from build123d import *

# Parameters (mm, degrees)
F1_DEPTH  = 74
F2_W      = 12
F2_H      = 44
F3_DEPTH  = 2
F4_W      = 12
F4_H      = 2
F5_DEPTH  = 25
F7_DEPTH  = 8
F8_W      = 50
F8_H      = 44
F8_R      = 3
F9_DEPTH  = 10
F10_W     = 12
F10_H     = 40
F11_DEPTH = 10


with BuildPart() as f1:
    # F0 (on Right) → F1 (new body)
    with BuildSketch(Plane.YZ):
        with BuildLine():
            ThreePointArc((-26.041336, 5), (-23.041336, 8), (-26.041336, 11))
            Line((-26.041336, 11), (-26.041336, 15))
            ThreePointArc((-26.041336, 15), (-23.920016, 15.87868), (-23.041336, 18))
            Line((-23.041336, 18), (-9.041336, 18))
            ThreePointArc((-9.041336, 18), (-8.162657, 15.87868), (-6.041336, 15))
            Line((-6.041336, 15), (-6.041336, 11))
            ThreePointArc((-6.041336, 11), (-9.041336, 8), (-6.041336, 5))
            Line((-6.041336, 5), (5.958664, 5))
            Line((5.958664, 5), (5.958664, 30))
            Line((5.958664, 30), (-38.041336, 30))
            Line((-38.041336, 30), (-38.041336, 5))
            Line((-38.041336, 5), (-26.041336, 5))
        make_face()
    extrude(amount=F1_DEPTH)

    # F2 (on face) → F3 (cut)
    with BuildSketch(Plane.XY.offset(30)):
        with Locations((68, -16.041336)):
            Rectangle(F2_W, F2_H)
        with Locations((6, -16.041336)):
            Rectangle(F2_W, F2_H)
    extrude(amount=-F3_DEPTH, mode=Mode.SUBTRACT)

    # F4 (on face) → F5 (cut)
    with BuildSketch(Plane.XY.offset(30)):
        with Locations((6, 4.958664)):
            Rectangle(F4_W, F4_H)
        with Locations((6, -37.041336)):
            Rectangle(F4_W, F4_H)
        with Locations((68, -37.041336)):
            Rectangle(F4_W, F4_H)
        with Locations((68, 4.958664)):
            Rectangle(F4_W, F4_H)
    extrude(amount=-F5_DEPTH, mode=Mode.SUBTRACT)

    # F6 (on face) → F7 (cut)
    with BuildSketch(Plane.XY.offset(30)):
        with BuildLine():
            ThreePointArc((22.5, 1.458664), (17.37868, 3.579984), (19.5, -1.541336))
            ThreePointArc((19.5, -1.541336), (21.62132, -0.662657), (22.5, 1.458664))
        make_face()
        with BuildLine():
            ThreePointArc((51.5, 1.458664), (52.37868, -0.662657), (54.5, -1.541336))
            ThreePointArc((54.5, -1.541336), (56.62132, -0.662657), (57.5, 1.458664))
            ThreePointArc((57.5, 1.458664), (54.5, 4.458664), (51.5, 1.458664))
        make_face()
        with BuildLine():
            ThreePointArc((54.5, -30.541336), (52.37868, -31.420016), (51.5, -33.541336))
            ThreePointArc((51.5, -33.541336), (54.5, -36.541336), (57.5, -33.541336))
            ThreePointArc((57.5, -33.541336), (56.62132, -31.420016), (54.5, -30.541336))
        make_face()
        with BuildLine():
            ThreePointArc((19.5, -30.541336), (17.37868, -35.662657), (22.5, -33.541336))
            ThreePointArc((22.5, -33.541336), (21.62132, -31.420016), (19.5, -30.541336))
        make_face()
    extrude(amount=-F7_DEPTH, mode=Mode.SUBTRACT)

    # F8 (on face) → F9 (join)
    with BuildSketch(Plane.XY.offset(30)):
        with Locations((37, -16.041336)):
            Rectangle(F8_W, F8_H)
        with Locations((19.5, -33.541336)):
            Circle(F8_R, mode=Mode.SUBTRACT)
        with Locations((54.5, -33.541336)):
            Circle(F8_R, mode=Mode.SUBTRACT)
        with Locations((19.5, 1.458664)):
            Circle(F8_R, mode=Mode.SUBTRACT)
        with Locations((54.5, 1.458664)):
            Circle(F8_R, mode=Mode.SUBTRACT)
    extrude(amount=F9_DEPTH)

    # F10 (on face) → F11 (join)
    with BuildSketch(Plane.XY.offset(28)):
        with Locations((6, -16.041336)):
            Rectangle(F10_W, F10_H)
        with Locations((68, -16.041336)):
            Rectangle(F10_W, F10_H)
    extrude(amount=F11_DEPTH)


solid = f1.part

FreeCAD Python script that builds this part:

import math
import FreeCAD as App
import Part
import Sketcher


def add_polygon(sketch, points):
    """Adds a closed chain of lines whose ends are joined by coincident constraints."""
    first, n = sketch.GeometryCount, len(points)
    for a, b in zip(points, points[1:] + points[:1]):
        sketch.addGeometry(Part.LineSegment(App.Vector(*a, 0), App.Vector(*b, 0)), False)
    for i in range(n):
        sketch.addConstraint(Sketcher.Constraint("Coincident", first + i, 2, first + (i + 1) % n, 1))

doc = App.newDocument("Part")
body = doc.addObject("PartDesign::Body", "Body")

sketch1 = body.newObject("Sketcher::SketchObject", "Sketch")
sketch1.AttachmentSupport = (doc.getObject("YZ_Plane"), [""])
sketch1.MapMode = "FlatFace"
sketch1.addGeometry(Part.ArcOfCircle(Part.Circle(App.Vector(-26, 8, 0), App.Vector(0, 0, 1), 3), math.radians(-90), math.radians(90)), False)
sketch1.addGeometry(Part.LineSegment(App.Vector(-26, 11, 0), App.Vector(-26, 15, 0)), False)
sketch1.addGeometry(Part.ArcOfCircle(Part.Circle(App.Vector(-26, 18, 0), App.Vector(0, 0, 1), 3), math.radians(-90), math.radians(0)), False)
sketch1.addGeometry(Part.LineSegment(App.Vector(-23, 18, 0), App.Vector(-9, 18, 0)), False)
sketch1.addGeometry(Part.ArcOfCircle(Part.Circle(App.Vector(-6, 18, 0), App.Vector(0, 0, 1), 3), math.radians(180), math.radians(270)), False)
sketch1.addGeometry(Part.LineSegment(App.Vector(-6, 15, 0), App.Vector(-6, 11, 0)), False)
sketch1.addGeometry(Part.ArcOfCircle(Part.Circle(App.Vector(-6, 8, 0), App.Vector(0, 0, 1), 3), math.radians(90), math.radians(270)), False)
sketch1.addGeometry(Part.LineSegment(App.Vector(-6, 5, 0), App.Vector(6, 5, 0)), False)
sketch1.addGeometry(Part.LineSegment(App.Vector(6, 5, 0), App.Vector(6, 30, 0)), False)
sketch1.addGeometry(Part.LineSegment(App.Vector(6, 30, 0), App.Vector(-38, 30, 0)), False)
sketch1.addGeometry(Part.LineSegment(App.Vector(-38, 30, 0), App.Vector(-38, 5, 0)), False)
sketch1.addGeometry(Part.LineSegment(App.Vector(-38, 5, 0), App.Vector(-26, 5, 0)), False)
sketch1.addConstraint(Sketcher.Constraint("Coincident", 0, 2, 1, 1))
sketch1.addConstraint(Sketcher.Constraint("Coincident", 1, 2, 2, 1))
sketch1.addConstraint(Sketcher.Constraint("Coincident", 2, 2, 3, 1))
sketch1.addConstraint(Sketcher.Constraint("Coincident", 3, 2, 4, 1))
sketch1.addConstraint(Sketcher.Constraint("Coincident", 4, 2, 5, 1))
sketch1.addConstraint(Sketcher.Constraint("Coincident", 5, 2, 6, 1))
sketch1.addConstraint(Sketcher.Constraint("Tangent", 6, 2, 7, 1))
sketch1.addConstraint(Sketcher.Constraint("Coincident", 7, 2, 8, 1))
sketch1.addConstraint(Sketcher.Constraint("Coincident", 8, 2, 9, 1))
sketch1.addConstraint(Sketcher.Constraint("Coincident", 9, 2, 10, 1))
sketch1.addConstraint(Sketcher.Constraint("Coincident", 10, 2, 11, 1))
sketch1.addConstraint(Sketcher.Constraint("Tangent", 11, 2, 0, 1))
sketch1.addConstraint(Sketcher.Constraint("Vertical", 1))
sketch1.addConstraint(Sketcher.Constraint("Horizontal", 3))
sketch1.addConstraint(Sketcher.Constraint("Vertical", 5))
sketch1.addConstraint(Sketcher.Constraint("Horizontal", 7))
sketch1.addConstraint(Sketcher.Constraint("Vertical", 8))
sketch1.addConstraint(Sketcher.Constraint("Horizontal", 9))
sketch1.addConstraint(Sketcher.Constraint("Vertical", 10))
sketch1.addConstraint(Sketcher.Constraint("Horizontal", 11))
sketch1.addConstraint(Sketcher.Constraint("Equal", 0, 2))
sketch1.addConstraint(Sketcher.Constraint("Equal", 2, 4))
sketch1.addConstraint(Sketcher.Constraint("Equal", 4, 6))
sketch1.addConstraint(Sketcher.Constraint("Horizontal", 2, 3, 4, 3))
sketch1.addConstraint(Sketcher.Constraint("Horizontal", 0, 3, 6, 3))
sketch1.addConstraint(Sketcher.Constraint("Horizontal", 4, 3, 2, 2))
sketch1.addConstraint(Sketcher.Constraint("Vertical", 0, 3, 2, 3))
sketch1.addConstraint(Sketcher.Constraint("Vertical", 4, 3, 6, 3))
sketch1.addConstraint(Sketcher.Constraint("Vertical", 2, 3, 0, 2))
sketch1.addConstraint(Sketcher.Constraint("Vertical", 6, 3, 4, 2))
sketch1.addConstraint(Sketcher.Constraint("Equal", 7, 11))
sketch1.addConstraint(Sketcher.Constraint("Radius", 0, 3.0))
sketch1.addConstraint(Sketcher.Constraint("DistanceX", 3, 1, 3, 2, 14.0))
sketch1.addConstraint(Sketcher.Constraint("DistanceX", 7, 1, 7, 2, 12.0))
sketch1.addConstraint(Sketcher.Constraint("DistanceY", 1, 1, 1, 2, 4.0))
sketch1.addConstraint(Sketcher.Constraint("DistanceY", 8, 1, 8, 2, 25.0))
sketch1.addConstraint(Sketcher.Constraint("DistanceY", -1, 1, 0, 3, 8.0))
sketch1.addConstraint(Sketcher.Constraint("DistanceX", 0, 3, -1, 1, 26.041336))
pad1 = body.newObject("PartDesign::Pad", "Pad")
pad1.Profile = sketch1
pad1.Length = 74

sketch2 = body.newObject("Sketcher::SketchObject", "Sketch001")
sketch2.AttachmentSupport = (doc.getObject("XY_Plane"), [""])
sketch2.MapMode = "FlatFace"
sketch2.AttachmentOffset = App.Placement(App.Vector(0, 0, 30), App.Rotation())
add_polygon(sketch2, [(62, 6), (62, -38), (74, -38), (74, 6)])
add_polygon(sketch2, [(0, 6), (0, -38), (12, -38), (12, 6)])
sketch2.addConstraint(Sketcher.Constraint("Vertical", 0))
sketch2.addConstraint(Sketcher.Constraint("Horizontal", 1))
sketch2.addConstraint(Sketcher.Constraint("Vertical", 2))
sketch2.addConstraint(Sketcher.Constraint("Horizontal", 3))
sketch2.addConstraint(Sketcher.Constraint("Vertical", 4))
sketch2.addConstraint(Sketcher.Constraint("Horizontal", 5))
sketch2.addConstraint(Sketcher.Constraint("Vertical", 6))
sketch2.addConstraint(Sketcher.Constraint("Horizontal", 7))
sketch2.addConstraint(Sketcher.Constraint("PointOnObject", 4, 2, -2))
sketch2.addConstraint(Sketcher.Constraint("Horizontal", 1, 2, 4, 2))
sketch2.addConstraint(Sketcher.Constraint("Horizontal", 3, 2, 6, 2))
sketch2.addConstraint(Sketcher.Constraint("Equal", 3, 5))
sketch2.addConstraint(Sketcher.Constraint("DistanceX", 1, 1, 1, 2, 12.0))
sketch2.addConstraint(Sketcher.Constraint("DistanceY", 0, 2, 0, 1, 44.0))
sketch2.addConstraint(Sketcher.Constraint("DistanceX", -1, 1, 0, 2, 62.0))
sketch2.addConstraint(Sketcher.Constraint("DistanceY", 0, 2, -1, 1, 38.041336))
pocket1 = body.newObject("PartDesign::Pocket", "Pocket")
pocket1.Profile = sketch2
pocket1.Length = 2

sketch3 = body.newObject("Sketcher::SketchObject", "Sketch002")
sketch3.AttachmentSupport = (doc.getObject("XY_Plane"), [""])
sketch3.MapMode = "FlatFace"
sketch3.AttachmentOffset = App.Placement(App.Vector(0, 0, 30), App.Rotation())
add_polygon(sketch3, [(0, 6), (0, 4), (12, 4), (12, 6)])
add_polygon(sketch3, [(0, -36), (0, -38), (12, -38), (12, -36)])
add_polygon(sketch3, [(62, -36), (62, -38), (74, -38), (74, -36)])
add_polygon(sketch3, [(62, 6), (62, 4), (74, 4), (74, 6)])
sketch3.addConstraint(Sketcher.Constraint("Vertical", 0))
sketch3.addConstraint(Sketcher.Constraint("Horizontal", 1))
sketch3.addConstraint(Sketcher.Constraint("Vertical", 2))
sketch3.addConstraint(Sketcher.Constraint("Horizontal", 3))
sketch3.addConstraint(Sketcher.Constraint("Vertical", 4))
sketch3.addConstraint(Sketcher.Constraint("Horizontal", 5))
sketch3.addConstraint(Sketcher.Constraint("Vertical", 6))
sketch3.addConstraint(Sketcher.Constraint("Horizontal", 7))
sketch3.addConstraint(Sketcher.Constraint("Vertical", 8))
sketch3.addConstraint(Sketcher.Constraint("Horizontal", 9))
sketch3.addConstraint(Sketcher.Constraint("Vertical", 10))
sketch3.addConstraint(Sketcher.Constraint("Horizontal", 11))
sketch3.addConstraint(Sketcher.Constraint("Vertical", 12))
sketch3.addConstraint(Sketcher.Constraint("Horizontal", 13))
sketch3.addConstraint(Sketcher.Constraint("Vertical", 14))
sketch3.addConstraint(Sketcher.Constraint("Horizontal", 15))
sketch3.addConstraint(Sketcher.Constraint("PointOnObject", 0, 2, -2))
sketch3.addConstraint(Sketcher.Constraint("PointOnObject", 4, 2, -2))
sketch3.addConstraint(Sketcher.Constraint("Horizontal", 5, 2, 8, 2))
sketch3.addConstraint(Sketcher.Constraint("Horizontal", 7, 2, 10, 2))
sketch3.addConstraint(Sketcher.Constraint("Horizontal", 1, 2, 12, 2))
sketch3.addConstraint(Sketcher.Constraint("Horizontal", 3, 2, 14, 2))
sketch3.addConstraint(Sketcher.Constraint("Vertical", 2, 2, 5, 2))
sketch3.addConstraint(Sketcher.Constraint("Vertical", 11, 2, 12, 2))
sketch3.addConstraint(Sketcher.Constraint("Vertical", 10, 2, 13, 2))
sketch3.addConstraint(Sketcher.Constraint("Equal", 7, 9))
sketch3.addConstraint(Sketcher.Constraint("Equal", 2, 4))
sketch3.addConstraint(Sketcher.Constraint("DistanceX", 1, 1, 1, 2, 12.0))
sketch3.addConstraint(Sketcher.Constraint("DistanceY", 0, 2, 0, 1, 2.0))
sketch3.addConstraint(Sketcher.Constraint("DistanceX", -1, 1, 8, 2, 62.0))
sketch3.addConstraint(Sketcher.Constraint("DistanceY", 4, 2, 0, 2, 42.0))
sketch3.addConstraint(Sketcher.Constraint("DistanceY", -1, 1, 0, 2, 3.958664))
pocket2 = body.newObject("PartDesign::Pocket", "Pocket001")
pocket2.Profile = sketch3
pocket2.Length = 25

sketch4 = body.newObject("Sketcher::SketchObject", "Sketch003")
sketch4.AttachmentSupport = (doc.getObject("XY_Plane"), [""])
sketch4.MapMode = "FlatFace"
sketch4.AttachmentOffset = App.Placement(App.Vector(0, 0, 30), App.Rotation())
sketch4.addGeometry(Part.ArcOfCircle(Part.Circle(App.Vector(19.5, 1.5, 0), App.Vector(0, 0, 1), 3), math.radians(0), math.radians(270)), False)
sketch4.addGeometry(Part.ArcOfCircle(Part.Circle(App.Vector(19.5, 1.5, 0), App.Vector(0, 0, 1), 3), math.radians(-90), math.radians(0)), False)
sketch4.addGeometry(Part.ArcOfCircle(Part.Circle(App.Vector(54.5, 1.5, 0), App.Vector(0, 0, 1), 3), math.radians(180), math.radians(270)), False)
sketch4.addGeometry(Part.ArcOfCircle(Part.Circle(App.Vector(54.5, 1.5, 0), App.Vector(0, 0, 1), 3), math.radians(-90), math.radians(0)), False)
sketch4.addGeometry(Part.ArcOfCircle(Part.Circle(App.Vector(54.5, 1.5, 0), App.Vector(0, 0, 1), 3), math.radians(0), math.radians(180)), False)
sketch4.addGeometry(Part.ArcOfCircle(Part.Circle(App.Vector(54.5, -33.5, 0), App.Vector(0, 0, 1), 3), math.radians(90), math.radians(180)), False)
sketch4.addGeometry(Part.ArcOfCircle(Part.Circle(App.Vector(54.5, -33.5, 0), App.Vector(0, 0, 1), 3), math.radians(180), math.radians(360)), False)
sketch4.addGeometry(Part.ArcOfCircle(Part.Circle(App.Vector(54.5, -33.5, 0), App.Vector(0, 0, 1), 3), math.radians(0), math.radians(90)), False)
sketch4.addGeometry(Part.ArcOfCircle(Part.Circle(App.Vector(19.5, -33.5, 0), App.Vector(0, 0, 1), 3), math.radians(90), math.radians(360)), False)
sketch4.addGeometry(Part.ArcOfCircle(Part.Circle(App.Vector(19.5, -33.5, 0), App.Vector(0, 0, 1), 3), math.radians(0), math.radians(90)), False)
sketch4.addConstraint(Sketcher.Constraint("Tangent", 0, 1, 1, 2))
sketch4.addConstraint(Sketcher.Constraint("Coincident", 1, 1, 0, 2))
sketch4.addConstraint(Sketcher.Constraint("Tangent", 2, 2, 3, 1))
sketch4.addConstraint(Sketcher.Constraint("Tangent", 3, 2, 4, 1))
sketch4.addConstraint(Sketcher.Constraint("Tangent", 4, 2, 2, 1))
sketch4.addConstraint(Sketcher.Constraint("Tangent", 5, 2, 6, 1))
sketch4.addConstraint(Sketcher.Constraint("Tangent", 6, 2, 7, 1))
sketch4.addConstraint(Sketcher.Constraint("Tangent", 7, 2, 5, 1))
sketch4.addConstraint(Sketcher.Constraint("Tangent", 8, 1, 9, 2))
sketch4.addConstraint(Sketcher.Constraint("Coincident", 9, 1, 8, 2))
sketch4.addConstraint(Sketcher.Constraint("Equal", 1, 2))
sketch4.addConstraint(Sketcher.Constraint("Equal", 4, 5))
sketch4.addConstraint(Sketcher.Constraint("Equal", 7, 8))
sketch4.addConstraint(Sketcher.Constraint("Horizontal", 1, 3, 2, 3))
sketch4.addConstraint(Sketcher.Constraint("Horizontal", 7, 3, 8, 3))
sketch4.addConstraint(Sketcher.Constraint("Horizontal", 4, 3, 0, 1))
sketch4.addConstraint(Sketcher.Constraint("Horizontal", 0, 1, 3, 2))
sketch4.addConstraint(Sketcher.Constraint("Horizontal", 3, 2, 4, 2))
sketch4.addConstraint(Sketcher.Constraint("Horizontal", 9, 3, 5, 2))
sketch4.addConstraint(Sketcher.Constraint("Horizontal", 5, 2, 6, 2))
sketch4.addConstraint(Sketcher.Constraint("Horizontal", 6, 2, 9, 1))
sketch4.addConstraint(Sketcher.Constraint("Vertical", 4, 3, 5, 3))
sketch4.addConstraint(Sketcher.Constraint("Vertical", 1, 3, 8, 3))
sketch4.addConstraint(Sketcher.Constraint("Vertical", 9, 3, 1, 1))
sketch4.addConstraint(Sketcher.Constraint("Vertical", 7, 3, 2, 2))
sketch4.addConstraint(Sketcher.Constraint("Vertical", 2, 2, 7, 2))
sketch4.addConstraint(Sketcher.Constraint("Vertical", 1, 1, 8, 1))
sketch4.addConstraint(Sketcher.Constraint("Radius", 0, 3.0))
sketch4.addConstraint(Sketcher.Constraint("DistanceX", 1, 3, 2, 3, 34.999999))
sketch4.addConstraint(Sketcher.Constraint("DistanceY", 5, 3, 3, 3, 35.000001))
sketch4.addConstraint(Sketcher.Constraint("DistanceX", -1, 1, 0, 3, 19.5))
sketch4.addConstraint(Sketcher.Constraint("DistanceY", -1, 1, 0, 3, 1.458664))
pocket3 = body.newObject("PartDesign::Pocket", "Pocket002")
pocket3.Profile = sketch4
pocket3.Length = 8

sketch5 = body.newObject("Sketcher::SketchObject", "Sketch004")
sketch5.AttachmentSupport = (doc.getObject("XY_Plane"), [""])
sketch5.MapMode = "FlatFace"
sketch5.AttachmentOffset = App.Placement(App.Vector(0, 0, 30), App.Rotation())
add_polygon(sketch5, [(12, 6), (12, -38), (62, -38), (62, 6)])
sketch5.addGeometry(Part.Circle(App.Vector(19.5, -33.5, 0), App.Vector(0, 0, 1), 3), False)
sketch5.addGeometry(Part.Circle(App.Vector(54.5, -33.5, 0), App.Vector(0, 0, 1), 3), False)
sketch5.addGeometry(Part.Circle(App.Vector(19.5, 1.5, 0), App.Vector(0, 0, 1), 3), False)
sketch5.addGeometry(Part.Circle(App.Vector(54.5, 1.5, 0), App.Vector(0, 0, 1), 3), False)
sketch5.addConstraint(Sketcher.Constraint("Vertical", 0))
sketch5.addConstraint(Sketcher.Constraint("Horizontal", 1))
sketch5.addConstraint(Sketcher.Constraint("Vertical", 2))
sketch5.addConstraint(Sketcher.Constraint("Horizontal", 3))
sketch5.addConstraint(Sketcher.Constraint("Equal", 4, 5))
sketch5.addConstraint(Sketcher.Constraint("Equal", 5, 6))
sketch5.addConstraint(Sketcher.Constraint("Equal", 6, 7))
sketch5.addConstraint(Sketcher.Constraint("Horizontal", 4, 3, 5, 3))
sketch5.addConstraint(Sketcher.Constraint("Horizontal", 6, 3, 7, 3))
sketch5.addConstraint(Sketcher.Constraint("Vertical", 4, 3, 6, 3))
sketch5.addConstraint(Sketcher.Constraint("Vertical", 5, 3, 7, 3))
sketch5.addConstraint(Sketcher.Constraint("Diameter", 4, 6.0))
sketch5.addConstraint(Sketcher.Constraint("DistanceX", 1, 1, 1, 2, 50.0))
sketch5.addConstraint(Sketcher.Constraint("DistanceY", 0, 2, 0, 1, 44.0))
sketch5.addConstraint(Sketcher.Constraint("DistanceX", -1, 1, 0, 2, 12.0))
sketch5.addConstraint(Sketcher.Constraint("DistanceX", 4, 3, 5, 3, 35.0))
sketch5.addConstraint(Sketcher.Constraint("DistanceY", 4, 3, 6, 3, 35.0))
sketch5.addConstraint(Sketcher.Constraint("DistanceX", -1, 1, 4, 3, 19.5))
sketch5.addConstraint(Sketcher.Constraint("DistanceY", 0, 2, 4, 3, 4.5))
sketch5.addConstraint(Sketcher.Constraint("DistanceY", 4, 3, -1, 1, 33.541336))
pad2 = body.newObject("PartDesign::Pad", "Pad001")
pad2.Profile = sketch5
pad2.Length = 10

sketch6 = body.newObject("Sketcher::SketchObject", "Sketch005")
sketch6.AttachmentSupport = (doc.getObject("XY_Plane"), [""])
sketch6.MapMode = "FlatFace"
sketch6.AttachmentOffset = App.Placement(App.Vector(0, 0, 28), App.Rotation())
add_polygon(sketch6, [(0, 4), (0, -36), (12, -36), (12, 4)])
add_polygon(sketch6, [(62, 4), (62, -36), (74, -36), (74, 4)])
sketch6.addConstraint(Sketcher.Constraint("Vertical", 0))
sketch6.addConstraint(Sketcher.Constraint("Horizontal", 1))
sketch6.addConstraint(Sketcher.Constraint("Vertical", 2))
sketch6.addConstraint(Sketcher.Constraint("Horizontal", 3))
sketch6.addConstraint(Sketcher.Constraint("Vertical", 4))
sketch6.addConstraint(Sketcher.Constraint("Horizontal", 5))
sketch6.addConstraint(Sketcher.Constraint("Vertical", 6))
sketch6.addConstraint(Sketcher.Constraint("Horizontal", 7))
sketch6.addConstraint(Sketcher.Constraint("PointOnObject", 0, 2, -2))
sketch6.addConstraint(Sketcher.Constraint("Horizontal", 1, 2, 4, 2))
sketch6.addConstraint(Sketcher.Constraint("Horizontal", 3, 2, 6, 2))
sketch6.addConstraint(Sketcher.Constraint("Equal", 3, 5))
sketch6.addConstraint(Sketcher.Constraint("DistanceX", 1, 1, 1, 2, 12.0))
sketch6.addConstraint(Sketcher.Constraint("DistanceY", 0, 2, 0, 1, 40.0))
sketch6.addConstraint(Sketcher.Constraint("DistanceX", -1, 1, 4, 2, 62.0))
sketch6.addConstraint(Sketcher.Constraint("DistanceY", 0, 2, -1, 1, 36.041336))
pad3 = body.newObject("PartDesign::Pad", "Pad002")
pad3.Profile = sketch6
pad3.Length = 10

doc.recompute()
